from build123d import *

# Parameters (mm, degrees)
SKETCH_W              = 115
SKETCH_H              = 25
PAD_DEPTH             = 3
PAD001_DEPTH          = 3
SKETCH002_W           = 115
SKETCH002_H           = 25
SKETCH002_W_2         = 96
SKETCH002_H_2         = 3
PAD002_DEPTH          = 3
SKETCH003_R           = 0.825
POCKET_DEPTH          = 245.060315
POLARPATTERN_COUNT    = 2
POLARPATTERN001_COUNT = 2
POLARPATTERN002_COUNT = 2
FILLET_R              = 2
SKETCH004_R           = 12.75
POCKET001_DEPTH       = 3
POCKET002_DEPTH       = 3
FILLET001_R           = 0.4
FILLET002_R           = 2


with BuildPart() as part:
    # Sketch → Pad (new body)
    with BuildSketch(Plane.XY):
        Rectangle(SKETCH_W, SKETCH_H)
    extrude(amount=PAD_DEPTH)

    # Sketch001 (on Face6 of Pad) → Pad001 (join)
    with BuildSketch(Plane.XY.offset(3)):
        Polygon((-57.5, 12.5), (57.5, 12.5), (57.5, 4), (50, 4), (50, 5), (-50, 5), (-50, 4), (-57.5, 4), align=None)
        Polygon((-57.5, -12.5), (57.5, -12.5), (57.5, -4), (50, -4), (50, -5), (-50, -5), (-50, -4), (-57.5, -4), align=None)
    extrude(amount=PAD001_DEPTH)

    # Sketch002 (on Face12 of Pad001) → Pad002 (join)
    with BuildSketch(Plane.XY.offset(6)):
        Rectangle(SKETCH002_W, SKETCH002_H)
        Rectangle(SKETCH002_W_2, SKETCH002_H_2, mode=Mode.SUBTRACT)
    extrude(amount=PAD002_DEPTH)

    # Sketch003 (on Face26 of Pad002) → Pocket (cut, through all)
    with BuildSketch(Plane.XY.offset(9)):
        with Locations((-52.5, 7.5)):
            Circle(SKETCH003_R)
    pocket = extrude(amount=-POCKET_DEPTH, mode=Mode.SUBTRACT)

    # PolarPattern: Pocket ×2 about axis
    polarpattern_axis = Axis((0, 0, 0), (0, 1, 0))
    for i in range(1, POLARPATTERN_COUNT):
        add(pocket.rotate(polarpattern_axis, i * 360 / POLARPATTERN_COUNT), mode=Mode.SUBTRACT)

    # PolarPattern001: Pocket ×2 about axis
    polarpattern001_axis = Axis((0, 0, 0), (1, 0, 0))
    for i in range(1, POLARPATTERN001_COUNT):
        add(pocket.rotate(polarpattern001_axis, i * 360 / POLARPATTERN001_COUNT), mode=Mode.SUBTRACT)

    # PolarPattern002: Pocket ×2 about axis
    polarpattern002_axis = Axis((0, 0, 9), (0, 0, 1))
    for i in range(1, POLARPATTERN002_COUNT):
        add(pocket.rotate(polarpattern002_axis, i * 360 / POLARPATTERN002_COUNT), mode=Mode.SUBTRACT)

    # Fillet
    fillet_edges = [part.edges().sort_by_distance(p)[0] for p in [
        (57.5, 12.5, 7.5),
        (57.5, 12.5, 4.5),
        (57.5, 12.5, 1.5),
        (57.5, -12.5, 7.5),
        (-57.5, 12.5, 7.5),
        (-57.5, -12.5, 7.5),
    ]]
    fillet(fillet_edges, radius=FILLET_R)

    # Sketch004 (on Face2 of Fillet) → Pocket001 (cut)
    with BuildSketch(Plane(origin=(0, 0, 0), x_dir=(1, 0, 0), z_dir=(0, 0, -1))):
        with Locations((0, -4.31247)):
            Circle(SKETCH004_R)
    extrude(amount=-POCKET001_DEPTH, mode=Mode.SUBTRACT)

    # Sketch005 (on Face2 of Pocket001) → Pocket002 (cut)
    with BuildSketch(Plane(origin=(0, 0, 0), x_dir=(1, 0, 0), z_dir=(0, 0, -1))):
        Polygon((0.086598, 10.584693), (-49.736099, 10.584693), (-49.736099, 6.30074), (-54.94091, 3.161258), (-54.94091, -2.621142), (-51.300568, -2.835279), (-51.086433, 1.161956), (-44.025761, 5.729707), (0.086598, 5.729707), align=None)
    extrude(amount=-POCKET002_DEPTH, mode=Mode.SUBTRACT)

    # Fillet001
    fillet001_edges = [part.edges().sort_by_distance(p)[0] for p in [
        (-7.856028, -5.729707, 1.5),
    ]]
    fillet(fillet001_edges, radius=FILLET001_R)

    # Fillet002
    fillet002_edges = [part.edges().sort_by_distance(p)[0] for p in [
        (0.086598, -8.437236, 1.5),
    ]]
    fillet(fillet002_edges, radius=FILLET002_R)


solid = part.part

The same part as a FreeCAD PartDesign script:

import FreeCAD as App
import Part
import Sketcher

V = App.Vector
Q = App.Units.Quantity


def edges_at(feature, points):
    """Names of the edges that pass closest to the given points."""
    edges = feature.Shape.Edges
    near = lambda p: min(range(len(edges)), key=lambda i: edges[i].distToShape(Part.Vertex(*p))[0])
    return sorted({f"Edge{near(p) + 1}" for p in points})

doc = App.newDocument("Part")
body = doc.addObject("PartDesign::Body", "Body")

sketch1 = body.newObject("Sketcher::SketchObject", "Sketch")
sketch1.AttachmentSupport = (doc.getObject("XY_Plane"), [""])
sketch1.MapMode = "FlatFace"
sketch1.addGeometry(Part.LineSegment(V(-57.5, 12.5, 0), V(-57.5, -12.5, 0)), False)
sketch1.addGeometry(Part.LineSegment(V(-57.5, -12.5, 0), V(57.5, -12.5, 0)), False)
sketch1.addGeometry(Part.LineSegment(V(57.5, -12.5, 0), V(57.5, 12.5, 0)), False)
sketch1.addGeometry(Part.LineSegment(V(57.5, 12.5, 0), V(-57.5, 12.5, 0)), False)
sketch1.addConstraint(Sketcher.Constraint("Coincident", 0, 2, 1, 1))
sketch1.addConstraint(Sketcher.Constraint("Coincident", 1, 2, 2, 1))
sketch1.addConstraint(Sketcher.Constraint("Coincident", 2, 2, 3, 1))
sketch1.addConstraint(Sketcher.Constraint("Coincident", 3, 2, 0, 1))
sketch1.addConstraint(Sketcher.Constraint("Vertical", 0))
sketch1.addConstraint(Sketcher.Constraint("Horizontal", 1))
sketch1.addConstraint(Sketcher.Constraint("Vertical", 2))
sketch1.addConstraint(Sketcher.Constraint("Horizontal", 3))
sketch1.addConstraint(Sketcher.Constraint("Symmetric", 0, 2, 2, 2, -1, 1))
sketch1.addConstraint(Sketcher.Constraint("DistanceX", 1, 1, 1, 2, Q("115 mm")))
sketch1.addConstraint(Sketcher.Constraint("DistanceY", 0, 2, 0, 1, Q("25 mm")))
pad1 = body.newObject("PartDesign::Pad", "Pad")
pad1.Profile = sketch1
pad1.Length = 3

sketch2 = body.newObject("Sketcher::SketchObject", "Sketch001")
sketch2.AttachmentSupport = (doc.getObject("XY_Plane"), [""])
sketch2.MapMode = "FlatFace"
sketch2.AttachmentOffset = App.Placement(V(0, 0, 3), App.Rotation())
sketch2.addGeometry(Part.LineSegment(V(57.5, 12.5, 0), V(-57.5, 12.5, 0)), False)
sketch2.addGeometry(Part.LineSegment(V(-57.5, 12.5, 0), V(-57.5, 4, 0)), False)
sketch2.addGeometry(Part.LineSegment(V(-57.5, 4, 0), V(-50, 4, 0)), False)
sketch2.addGeometry(Part.LineSegment(V(-50, 4, 0), V(-50, 5, 0)), False)
sketch2.addGeometry(Part.LineSegment(V(-50, 5, 0), V(50, 5, 0)), False)
sketch2.addGeometry(Part.LineSegment(V(50, 5, 0), V(50, 4, 0)), False)
sketch2.addGeometry(Part.LineSegment(V(50, 4, 0), V(57.5, 4, 0)), False)
sketch2.addGeometry(Part.LineSegment(V(57.5, 4, 0), V(57.5, 12.5, 0)), False)
sketch2.addGeometry(Part.LineSegment(V(-57.5, -12.5, 0), V(57.5, -12.5, 0)), False)
sketch2.addGeometry(Part.LineSegment(V(57.5, -12.5, 0), V(57.5, -4, 0)), False)
sketch2.addGeometry(Part.LineSegment(V(57.5, -4, 0), V(50, -4, 0)), False)
sketch2.addGeometry(Part.LineSegment(V(50, -4, 0), V(50, -5, 0)), False)
sketch2.addGeometry(Part.LineSegment(V(50, -5, 0), V(-50, -5, 0)), False)
sketch2.addGeometry(Part.LineSegment(V(-50, -5, 0), V(-50, -4, 0)), False)
sketch2.addGeometry(Part.LineSegment(V(-50, -4, 0), V(-57.5, -4, 0)), False)
sketch2.addGeometry(Part.LineSegment(V(-57.5, -4, 0), V(-57.5, -12.5, 0)), False)
sketch2.addConstraint(Sketcher.Constraint("Coincident", 0, 2, 1, 1))
sketch2.addConstraint(Sketcher.Constraint("Coincident", 1, 2, 2, 1))
sketch2.addConstraint(Sketcher.Constraint("Coincident", 2, 2, 3, 1))
sketch2.addConstraint(Sketcher.Constraint("Coincident", 3, 2, 4, 1))
sketch2.addConstraint(Sketcher.Constraint("Coincident", 4, 2, 5, 1))
sketch2.addConstraint(Sketcher.Constraint("Coincident", 5, 2, 6, 1))
sketch2.addConstraint(Sketcher.Constraint("Coincident", 6, 2, 7, 1))
sketch2.addConstraint(Sketcher.Constraint("Coincident", 7, 2, 0, 1))
sketch2.addConstraint(Sketcher.Constraint("Coincident", 8, 2, 9, 1))
sketch2.addConstraint(Sketcher.Constraint("Coincident", 9, 2, 10, 1))
sketch2.addConstraint(Sketcher.Constraint("Coincident", 10, 2, 11, 1))
sketch2.addConstraint(Sketcher.Constraint("Coincident", 11, 2, 12, 1))
sketch2.addConstraint(Sketcher.Constraint("Coincident", 12, 2, 13, 1))
sketch2.addConstraint(Sketcher.Constraint("Coincident", 13, 2, 14, 1))
sketch2.addConstraint(Sketcher.Constraint("Coincident", 14, 2, 15, 1))
sketch2.addConstraint(Sketcher.Constraint("Coincident", 15, 2, 8, 1))
sketch2.addConstraint(Sketcher.Constraint("Horizontal", 0))
sketch2.addConstraint(Sketcher.Constraint("Vertical", 1))
sketch2.addConstraint(Sketcher.Constraint("Horizontal", 2))
sketch2.addConstraint(Sketcher.Constraint("Vertical", 3))
sketch2.addConstraint(Sketcher.Constraint("Horizontal", 4))
sketch2.addConstraint(Sketcher.Constraint("Vertical", 5))
sketch2.addConstraint(Sketcher.Constraint("Horizontal", 6))
sketch2.addConstraint(Sketcher.Constraint("Vertical", 7))
sketch2.addConstraint(Sketcher.Constraint("Horizontal", 8))
sketch2.addConstraint(Sketcher.Constraint("Vertical", 9))
sketch2.addConstraint(Sketcher.Constraint("Horizontal", 10))
sketch2.addConstraint(Sketcher.Constraint("Vertical", 11))
sketch2.addConstraint(Sketcher.Constraint("Horizontal", 12))
sketch2.addConstraint(Sketcher.Constraint("Vertical", 13))
sketch2.addConstraint(Sketcher.Constraint("Horizontal", 14))
sketch2.addConstraint(Sketcher.Constraint("Vertical", 15))
sketch2.addConstraint(Sketcher.Constraint("Symmetric", 0, 2, 8, 2, -1, 1))
sketch2.addConstraint(Sketcher.Constraint("Symmetric", 2, 2, 10, 2, -1, 1))
sketch2.addConstraint(Sketcher.Constraint("Symmetric", 4, 2, 12, 2, -1, 1))
sketch2.addConstraint(Sketcher.Constraint("Symmetric", 6, 2, 14, 2, -1, 1))
sketch2.addConstraint(Sketcher.Constraint("Symmetric", 2, 2, 5, 2, -2))
sketch2.addConstraint(Sketcher.Constraint("Vertical", 7, 2, 8, 2))
sketch2.addConstraint(Sketcher.Constraint("DistanceX", 0, 2, 0, 1, Q("115 mm")))
sketch2.addConstraint(Sketcher.Constraint("DistanceX", 4, 1, 4, 2, Q("100 mm")))
sketch2.addConstraint(Sketcher.Constraint("DistanceY", 3, 1, 3, 2, Q("1 mm")))
sketch2.addConstraint(Sketcher.Constraint("DistanceY", 1, 2, 1, 1, Q("8.5 mm")))
sketch2.addConstraint(Sketcher.Constraint("DistanceY", -1, 1, 1, 2, Q("4 mm")))
pad2 = body.newObject("PartDesign::Pad", "Pad001")
pad2.Profile = sketch2
pad2.Length = 3

sketch3 = body.newObject("Sketcher::SketchObject", "Sketch002")
sketch3.AttachmentSupport = (doc.getObject("XY_Plane"), [""])
sketch3.MapMode = "FlatFace"
sketch3.AttachmentOffset = App.Placement(V(0, 0, 6), App.Rotation())
sketch3.addGeometry(Part.LineSegment(V(-57.5, 12.5, 0), V(-57.5, -12.5, 0)), False)
sketch3.addGeometry(Part.LineSegment(V(-57.5, -12.5, 0), V(57.5, -12.5, 0)), False)
sketch3.addGeometry(Part.LineSegment(V(57.5, -12.5, 0), V(57.5, 12.5, 0)), False)
sketch3.addGeometry(Part.LineSegment(V(57.5, 12.5, 0), V(-57.5, 12.5, 0)), False)
sketch3.addGeometry(Part.LineSegment(V(48, -1.5, 0), V(-48, -1.5, 0)), False)
sketch3.addGeometry(Part.LineSegment(V(-48, -1.5, 0), V(-48, 1.5, 0)), False)
sketch3.addGeometry(Part.LineSegment(V(-48, 1.5, 0), V(48, 1.5, 0)), False)
sketch3.addGeometry(Part.LineSegment(V(48, 1.5, 0), V(48, -1.5, 0)), False)
sketch3.addConstraint(Sketcher.Constraint("Coincident", 0, 2, 1, 1))
sketch3.addConstraint(Sketcher.Constraint("Coincident", 1, 2, 2, 1))
sketch3.addConstraint(Sketcher.Constraint("Coincident", 2, 2, 3, 1))
sketch3.addConstraint(Sketcher.Constraint("Coincident", 3, 2, 0, 1))
sketch3.addConstraint(Sketcher.Constraint("Coincident", 4, 2, 5, 1))
sketch3.addConstraint(Sketcher.Constraint("Coincident", 5, 2, 6, 1))
sketch3.addConstraint(Sketcher.Constraint("Coincident", 6, 2, 7, 1))
sketch3.addConstraint(Sketcher.Constraint("Coincident", 7, 2, 4, 1))
sketch3.addConstraint(Sketcher.Constraint("Vertical", 0))
sketch3.addConstraint(Sketcher.Constraint("Horizontal", 1))
sketch3.addConstraint(Sketcher.Constraint("Vertical", 2))
sketch3.addConstraint(Sketcher.Constraint("Horizontal", 3))
sketch3.addConstraint(Sketcher.Constraint("Horizontal", 4))
sketch3.addConstraint(Sketcher.Constraint("Vertical", 5))
sketch3.addConstraint(Sketcher.Constraint("Horizontal", 6))
sketch3.addConstraint(Sketcher.Constraint("Vertical", 7))
sketch3.addConstraint(Sketcher.Constraint("Symmetric", 0, 2, 2, 2, -1, 1))
sketch3.addConstraint(Sketcher.Constraint("Symmetric", 4, 2, 6, 2, -1, 1))
sketch3.addConstraint(Sketcher.Constraint("DistanceX", 1, 1, 1, 2, Q("115 mm")))
sketch3.addConstraint(Sketcher.Constraint("DistanceX", 4, 2, 4, 1, Q("96 mm")))
sketch3.addConstraint(Sketcher.Constraint("DistanceY", 0, 2, 0, 1, Q("25 mm")))
sketch3.addConstraint(Sketcher.Constraint("DistanceY", 5, 1, 5, 2, Q("3 mm")))
pad3 = body.newObject("PartDesign::Pad", "Pad002")
pad3.Profile = sketch3
pad3.Length = 3

sketch4 = body.newObject("Sketcher::SketchObject", "Sketch003")
sketch4.AttachmentSupport = (doc.getObject("XY_Plane"), [""])
sketch4.MapMode = "FlatFace"
sketch4.AttachmentOffset = App.Placement(V(0, 0, 9), App.Rotation())
sketch4.addGeometry(Part.Circle(V(-52.5, 7.5, 0), V(0, 0, 1), 0.825), False)
sketch4.addConstraint(Sketcher.Constraint("Diameter", 0, Q("1.65 mm")))
sketch4.addConstraint(Sketcher.Constraint("DistanceX", 0, 3, -1, 1, Q("52.5 mm")))
sketch4.addConstraint(Sketcher.Constraint("DistanceY", -1, 1, 0, 3, Q("7.5 mm")))
pocket1 = body.newObject("PartDesign::Pocket", "Pocket")
pocket1.Profile = sketch4
pocket1.Type = "ThroughAll"
doc.recompute()

polarpattern = body.newObject("PartDesign::PolarPattern", "PolarPattern")
polarpattern.Originals = [pocket1]
polarpattern.Axis = (doc.getObject("Y_Axis"), [""])
polarpattern.Angle = 360
polarpattern.Occurrences = 2
body.Tip = polarpattern
doc.recompute()

polarpattern2 = body.newObject("PartDesign::PolarPattern", "PolarPattern001")
polarpattern2.Originals = [pocket1]
polarpattern2.Axis = (doc.getObject("X_Axis"), [""])
polarpattern2.Angle = 360
polarpattern2.Occurrences = 2
body.Tip = polarpattern2
doc.recompute()

polarpattern3 = body.newObject("PartDesign::PolarPattern", "PolarPattern002")
polarpattern3.Originals = [pocket1]
polarpattern3.Axis = (doc.getObject("Z_Axis"), [""])
polarpattern3.Angle = 360
polarpattern3.Occurrences = 2
body.Tip = polarpattern3
doc.recompute()

fillet = body.newObject("PartDesign::Fillet", "Fillet")
fillet.Base = (polarpattern3, edges_at(polarpattern3, [
    (57.5, 12.5, 4.5),
    (57.5, 12.5, 4.5),
    (57.5, 12.5, 4.5),
    (57.5, -12.5, 4.5),
    (-57.5, 12.5, 4.5),
    (-57.5, -12.5, 4.5),
]))
fillet.Radius = 2

sketch5 = body.newObject("Sketcher::SketchObject", "Sketch004")
sketch5.AttachmentSupport = (doc.getObject("XY_Plane"), [""])
sketch5.MapMode = "FlatFace"
sketch5.addGeometry(Part.Circle(V(0, 4.31247, 0), V(0, 0, 1), 12.75), False)
sketch5.addConstraint(Sketcher.Constraint("PointOnObject", 0, 3, -2))
sketch5.addConstraint(Sketcher.Constraint("Diameter", 0, Q("25.5 mm")))
sketch5.addConstraint(Sketcher.Constraint("DistanceY", -1, 1, 0, 3, Q("4.31247 mm")))
pocket2 = body.newObject("PartDesign::Pocket", "Pocket001")
pocket2.Profile = sketch5
pocket2.Length = 3
pocket2.Reversed = True

sketch6 = body.newObject("Sketcher::SketchObject", "Sketch005")
sketch6.AttachmentSupport = (doc.getObject("XY_Plane"), [""])
sketch6.MapMode = "FlatFace"
sketch6.addGeometry(Part.LineSegment(V(0.086598, -10.584693, 0), V(-49.736099, -10.584693, 0)), False)
sketch6.addGeometry(Part.LineSegment(V(-49.736099, -10.584693, 0), V(-49.736099, -6.30074, 0)), False)
sketch6.addGeometry(Part.LineSegment(V(-49.736099, -6.30074, 0), V(-54.94091, -3.161258, 0)), False)
sketch6.addGeometry(Part.LineSegment(V(-54.94091, -3.161258, 0), V(-54.94091, 2.621142, 0)), False)
sketch6.addGeometry(Part.LineSegment(V(-54.94091, 2.621142, 0), V(-51.300568, 2.835279, 0)), False)
sketch6.addGeometry(Part.LineSegment(V(-51.300568, 2.835279, 0), V(-51.086433, -1.161956, 0)), False)
sketch6.addGeometry(Part.LineSegment(V(-51.086433, -1.161956, 0), V(-44.025761, -5.729707, 0)), False)
sketch6.addGeometry(Part.LineSegment(V(-44.025761, -5.729707, 0), V(0.086598, -5.729707, 0)), False)
sketch6.addGeometry(Part.LineSegment(V(0.086598, -5.729707, 0), V(0.086598, -10.584693, 0)), False)
sketch6.addConstraint(Sketcher.Constraint("Coincident", 0, 2, 1, 1))
sketch6.addConstraint(Sketcher.Constraint("Coincident", 1, 2, 2, 1))
sketch6.addConstraint(Sketcher.Constraint("Coincident", 2, 2, 3, 1))
sketch6.addConstraint(Sketcher.Constraint("Coincident", 3, 2, 4, 1))
sketch6.addConstraint(Sketcher.Constraint("Coincident", 4, 2, 5, 1))
sketch6.addConstraint(Sketcher.Constraint("Coincident", 5, 2, 6, 1))
sketch6.addConstraint(Sketcher.Constraint("Coincident", 6, 2, 7, 1))
sketch6.addConstraint(Sketcher.Constraint("Coincident", 7, 2, 8, 1))
sketch6.addConstraint(Sketcher.Constraint("Coincident", 8, 2, 0, 1))
sketch6.addConstraint(Sketcher.Constraint("Horizontal", 0))
sketch6.addConstraint(Sketcher.Constraint("Vertical", 1))
sketch6.addConstraint(Sketcher.Constraint("Vertical", 3))
sketch6.addConstraint(Sketcher.Constraint("Horizontal", 7))
sketch6.addConstraint(Sketcher.Constraint("Vertical", 8))
sketch6.addConstraint(Sketcher.Constraint("Angle", 6, Q("-32.899985 deg")))
sketch6.addConstraint(Sketcher.Constraint("DistanceY", 3, 1, 3, 2, Q("5.7824 mm")))
sketch6.addConstraint(Sketcher.Constraint("DistanceX", 7, 1, 7, 2, Q("44.112359 mm")))
sketch6.addConstraint(Sketcher.Constraint("DistanceX", 0, 2, -1, 1, Q("49.736099 mm")))
sketch6.addConstraint(Sketcher.Constraint("DistanceX", 0, 2, 0, 1, Q("49.822697 mm")))
sketch6.addConstraint(Sketcher.Constraint("DistanceY", 1, 1, 1, 2, Q("4.283953 mm")))
sketch6.addConstraint(Sketcher.Constraint("DistanceY", 8, 2, 8, 1, Q("4.854986 mm")))
sketch6.addConstraint(Sketcher.Constraint("DistanceY", 1, 2, -1, 1, Q("6.30074 mm")))
sketch6.addConstraint(Sketcher.Constraint("DistanceX", 2, 2, -1, 1, Q("54.94091 mm")))
sketch6.addConstraint(Sketcher.Constraint("DistanceY", 2, 2, -1, 1, Q("3.161258 mm")))
sketch6.addConstraint(Sketcher.Constraint("DistanceY", -1, 1, 4, 2, Q("2.835279 mm")))
sketch6.addConstraint(Sketcher.Constraint("DistanceX", 4, 2, 1, 2, Q("1.564469 mm")))
sketch6.addConstraint(Sketcher.Constraint("DistanceX", 5, 2, 6, 2, Q("7.060672 mm")))
pocket3 = body.newObject("PartDesign::Pocket", "Pocket002")
pocket3.Profile = sketch6
pocket3.Length = 3
pocket3.Reversed = True
doc.recompute()

fillet2 = body.newObject("PartDesign::Fillet", "Fillet001")
fillet2.Base = (pocket3, edges_at(pocket3, [(-7.856, -5.73, 1.5)]))
fillet2.Radius = 0.4
doc.recompute()

fillet3 = body.newObject("PartDesign::Fillet", "Fillet002")
fillet3.Base = (fillet2, edges_at(fillet2, [(0.087, -8.437, 1.5)]))
fillet3.Radius = 2

doc.recompute()
